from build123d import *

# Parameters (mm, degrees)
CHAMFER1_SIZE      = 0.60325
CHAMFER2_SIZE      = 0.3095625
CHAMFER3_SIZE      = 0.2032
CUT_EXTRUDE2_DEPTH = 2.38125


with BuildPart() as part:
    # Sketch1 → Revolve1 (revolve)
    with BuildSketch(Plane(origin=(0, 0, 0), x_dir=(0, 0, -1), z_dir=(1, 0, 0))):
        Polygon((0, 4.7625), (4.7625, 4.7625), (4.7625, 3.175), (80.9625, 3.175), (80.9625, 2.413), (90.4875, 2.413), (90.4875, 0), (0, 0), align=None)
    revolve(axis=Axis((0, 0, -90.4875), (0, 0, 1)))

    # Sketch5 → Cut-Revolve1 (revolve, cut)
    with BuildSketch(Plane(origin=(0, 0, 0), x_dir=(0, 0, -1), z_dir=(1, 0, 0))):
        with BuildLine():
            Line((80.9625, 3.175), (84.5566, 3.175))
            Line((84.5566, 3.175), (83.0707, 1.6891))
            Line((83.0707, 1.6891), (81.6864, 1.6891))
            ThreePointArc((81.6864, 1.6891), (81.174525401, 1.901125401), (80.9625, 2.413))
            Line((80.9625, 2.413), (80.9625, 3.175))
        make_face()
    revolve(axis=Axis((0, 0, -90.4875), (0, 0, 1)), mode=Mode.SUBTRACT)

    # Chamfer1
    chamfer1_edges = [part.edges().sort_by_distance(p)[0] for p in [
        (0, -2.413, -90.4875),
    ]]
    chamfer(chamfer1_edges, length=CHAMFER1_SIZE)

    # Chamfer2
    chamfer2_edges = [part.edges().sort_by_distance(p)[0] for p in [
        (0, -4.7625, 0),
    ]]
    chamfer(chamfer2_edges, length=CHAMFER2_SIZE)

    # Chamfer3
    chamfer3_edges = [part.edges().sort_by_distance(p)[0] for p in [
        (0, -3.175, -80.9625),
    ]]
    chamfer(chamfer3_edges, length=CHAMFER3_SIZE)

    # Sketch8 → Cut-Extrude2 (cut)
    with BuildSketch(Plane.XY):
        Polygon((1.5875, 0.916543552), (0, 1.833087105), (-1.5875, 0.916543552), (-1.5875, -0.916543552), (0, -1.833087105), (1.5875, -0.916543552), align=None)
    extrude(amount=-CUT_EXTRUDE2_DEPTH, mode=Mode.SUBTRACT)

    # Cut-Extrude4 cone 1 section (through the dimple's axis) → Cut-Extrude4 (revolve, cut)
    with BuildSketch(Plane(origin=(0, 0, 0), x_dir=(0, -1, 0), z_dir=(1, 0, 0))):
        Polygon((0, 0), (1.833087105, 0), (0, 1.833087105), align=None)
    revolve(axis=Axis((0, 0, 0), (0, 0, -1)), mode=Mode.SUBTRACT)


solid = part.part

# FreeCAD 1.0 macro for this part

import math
import FreeCAD as App
import Part
import Sketcher

V = App.Vector
Q = App.Units.Quantity


def edges_at(feature, points):
    """Names of the edges that pass closest to the given points."""
    edges = feature.Shape.Edges
    near = lambda p: min(range(len(edges)), key=lambda i: edges[i].distToShape(Part.Vertex(*p))[0])
    return sorted({f"Edge{near(p) + 1}" for p in points})


def add_polygon(sketch, points):
    """Adds a closed chain of lines whose ends are joined by coincident constraints."""
    first, n = sketch.GeometryCount, len(points)
    for a, b in zip(points, points[1:] + points[:1]):
        sketch.addGeometry(Part.LineSegment(App.Vector(*a, 0), App.Vector(*b, 0)), False)
    for i in range(n):
        sketch.addConstraint(Sketcher.Constraint("Coincident", first + i, 2, first + (i + 1) % n, 1))

doc = App.newDocument("Part")
body = doc.addObject("PartDesign::Body", "Body")

# Sketch on YZ plane
sketch1 = body.newObject("Sketcher::SketchObject", "Sketch")
sketch1.AttachmentSupport = (doc.getObject("YZ_Plane"), [""])
sketch1.MapMode = "FlatFace"
add_polygon(sketch1, [(4.8, -4.8), (4.8, 0), (0, 0), (0, -90.5), (2.4, -90.5), (2.4, -81), (3.2, -81), (3.2, -4.8)])  # lines 0-7
sketch1.addConstraint([
    Sketcher.Constraint("Vertical", 0),
    Sketcher.Constraint("Horizontal", 1),
    Sketcher.Constraint("Vertical", 2),
    Sketcher.Constraint("Horizontal", 3),
    Sketcher.Constraint("Vertical", 4),
    Sketcher.Constraint("Horizontal", 5),
    Sketcher.Constraint("Vertical", 6),
    Sketcher.Constraint("Horizontal", 7),
    Sketcher.Constraint("Coincident", 1, 2, -1, 1),
    Sketcher.Constraint("Equal", 1, 0),
    Sketcher.Constraint("DistanceY", 6, 1, 6, 2, Q("3 in")),
    Sketcher.Constraint("DistanceX", 5, 1, 5, 2, Q("0.03 in")),
    Sketcher.Constraint("DistanceX", 1, 2, 1, 1, Q("0.1875 in")),
    Sketcher.Constraint("DistanceX", 3, 1, 3, 2, Q("0.095 in")),
    Sketcher.Constraint("DistanceY", 2, 2, 2, 1, Q("3.5625 in")),
])
revolution = body.newObject("PartDesign::Revolution", "Revolution")
revolution.Profile = sketch1
revolution.ReferenceAxis = (sketch1, ["V_Axis"])
revolution.Angle = 360

# Sketch on YZ plane
sketch2 = body.newObject("Sketcher::SketchObject", "Sketch001")
sketch2.AttachmentSupport = (doc.getObject("YZ_Plane"), [""])
sketch2.MapMode = "FlatFace"
sketch2.addGeometry([
    Part.LineSegment(V(3.2, -84.6, 0), V(3.2, -81, 0)),  # 0
    Part.LineSegment(V(3.2, -81, 0), V(2.4, -81, 0)),  # 1
    Part.ArcOfCircle(Part.Circle(V(2.4, -81.7, 0), V(0, 0, 1), 0.7), math.radians(90), math.radians(180)),  # 2
    Part.LineSegment(V(1.7, -81.7, 0), V(1.7, -83.1, 0)),  # 3
    Part.LineSegment(V(1.7, -83.1, 0), V(3.2, -84.6, 0)),  # 4
], False)
sketch2.addConstraint([
    Sketcher.Constraint("Coincident", 0, 2, 1, 1),
    Sketcher.Constraint("Tangent", 1, 2, 2, 1),
    Sketcher.Constraint("Tangent", 2, 2, 3, 1),
    Sketcher.Constraint("Coincident", 3, 2, 4, 1),
    Sketcher.Constraint("Coincident", 4, 2, 0, 1),
    Sketcher.Constraint("Vertical", 0),
    Sketcher.Constraint("Horizontal", 1),
    Sketcher.Constraint("Vertical", 3),
    Sketcher.Constraint("Angle", 4, Q("-45 deg")),
    Sketcher.Constraint("DistanceX", 1, 2, 1, 1, Q("0.03 in")),
    Sketcher.Constraint("Radius", 2, Q("0.0285 in")),
    Sketcher.Constraint("DistanceY", 0, 1, 0, 2, Q("0.1415 in")),
    Sketcher.Constraint("DistanceX", -1, 1, 2, 3, Q("0.095 in")),
    Sketcher.Constraint("DistanceY", 2, 3, -1, 1, Q("3.216 in")),
])
groove = body.newObject("PartDesign::Groove", "Groove")
groove.Profile = sketch2
groove.ReferenceAxis = (sketch2, ["V_Axis"])
groove.Angle = 360
doc.recompute()

chamfer = body.newObject("PartDesign::Chamfer", "Chamfer")
chamfer.Base = (groove, edges_at(groove, [(0, -2.413, -90.487)]))
chamfer.Size = 0.60325
doc.recompute()

chamfer2 = body.newObject("PartDesign::Chamfer", "Chamfer001")
chamfer2.Base = (chamfer, edges_at(chamfer, [(0, -4.763, 0)]))
chamfer2.Size = 0.309563
doc.recompute()

chamfer3 = body.newObject("PartDesign::Chamfer", "Chamfer002")
chamfer3.Base = (chamfer2, edges_at(chamfer2, [(0, -3.175, -80.963)]))
chamfer3.Size = Q("0.008 in")

# Sketch on XY plane
sketch3 = body.newObject("Sketcher::SketchObject", "Sketch002")
sketch3.AttachmentSupport = (doc.getObject("XY_Plane"), [""])
sketch3.MapMode = "FlatFace"
add_polygon(sketch3, [(1.6, 0.9), (0, 1.8), (-1.6, 0.9), (-1.6, -0.9), (0, -1.8), (1.6, -0.9)])  # lines 0-5
sketch3.addConstraint([
    Sketcher.Constraint("Vertical", 2),
    Sketcher.Constraint("Vertical", 5),
    Sketcher.Constraint("Symmetric", 0, 2, 3, 2, -1, 1),
    Sketcher.Constraint("Symmetric", 1, 2, 4, 2, -1, 1),
    Sketcher.Constraint("PointOnObject", 0, 2, -2),
    Sketcher.Constraint("Parallel", 0, 3),
    Sketcher.Constraint("Horizontal", 2, 2, 4, 2),
    Sketcher.Constraint("Angle", 0, Q("150 deg")),
    Sketcher.Constraint("DistanceX", 1, 2, -1, 1, Q("0.0625 in")),
    Sketcher.Constraint("DistanceY", 2, 2, 2, 1, Q("1.833087 mm")),
])
pocket1 = body.newObject("PartDesign::Pocket", "Pocket")
pocket1.Profile = sketch3
pocket1.Length = Q("0.09375 in")

# Sketch on YZ plane
sketch4 = body.newObject("Sketcher::SketchObject", "Sketch003")
sketch4.AttachmentSupport = (doc.getObject("YZ_Plane"), [""])
sketch4.MapMode = "FlatFace"
add_polygon(sketch4, [(0, 0), (-1.8, 0), (0, -1.8)])  # lines 0-2
sketch4.addConstraint([
    Sketcher.Constraint("Horizontal", 0),
    Sketcher.Constraint("Vertical", 2),
    Sketcher.Constraint("Coincident", 2, 2, -1, 1),
    Sketcher.Constraint("Equal", 0, 2),
    Sketcher.Constraint("DistanceX", 0, 2, 0, 1, Q("1.833087 mm")),
])
groove2 = body.newObject("PartDesign::Groove", "Groove001")
groove2.Profile = sketch4
groove2.ReferenceAxis = (sketch4, ["V_Axis"])
groove2.Angle = 360

doc.recompute()
